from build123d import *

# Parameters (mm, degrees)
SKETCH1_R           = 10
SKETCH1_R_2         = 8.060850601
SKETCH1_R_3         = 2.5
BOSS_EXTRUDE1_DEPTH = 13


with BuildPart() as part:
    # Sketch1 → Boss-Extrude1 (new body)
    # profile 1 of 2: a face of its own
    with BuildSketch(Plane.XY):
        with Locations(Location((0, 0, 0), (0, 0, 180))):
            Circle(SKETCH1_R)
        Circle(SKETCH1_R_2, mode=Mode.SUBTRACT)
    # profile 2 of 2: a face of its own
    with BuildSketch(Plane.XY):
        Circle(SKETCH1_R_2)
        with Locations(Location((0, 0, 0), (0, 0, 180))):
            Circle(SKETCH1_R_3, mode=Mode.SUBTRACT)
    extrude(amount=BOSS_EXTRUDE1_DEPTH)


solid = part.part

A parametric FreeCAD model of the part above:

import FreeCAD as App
import Part
import Sketcher

V = App.Vector
Q = App.Units.Quantity

doc = App.newDocument("Part")
body = doc.addObject("PartDesign::Body", "Body")

# Sketch on XY plane
sketch1 = doc.addObject("Sketcher::SketchObject", "Sketch")
body.addObject(sketch1)
sketch1.AttachmentSupport = (doc.XY_Plane, [""])
sketch1.MapMode = "FlatFace"
sketch1.addGeometry([
    Part.Circle(V(0, 0, 0), V(0, 0, 1), 10),
    Part.Circle(V(0, 0, 0), V(0, 0, 1), 2.5),
], False)
sketch1.addConstraint([
    Sketcher.Constraint("Coincident", 0, 3, -1, 1),
    Sketcher.Constraint("Coincident", 1, 3, -1, 1),
    Sketcher.Constraint("Diameter", 0, Q("20 mm")),
    Sketcher.Constraint("Diameter", 1, Q("5 mm")),
])
pad1 = doc.addObject("PartDesign::Pad", "Pad")
body.addObject(pad1)
pad1.Profile = sketch1
pad1.Length = 13

doc.recompute()
